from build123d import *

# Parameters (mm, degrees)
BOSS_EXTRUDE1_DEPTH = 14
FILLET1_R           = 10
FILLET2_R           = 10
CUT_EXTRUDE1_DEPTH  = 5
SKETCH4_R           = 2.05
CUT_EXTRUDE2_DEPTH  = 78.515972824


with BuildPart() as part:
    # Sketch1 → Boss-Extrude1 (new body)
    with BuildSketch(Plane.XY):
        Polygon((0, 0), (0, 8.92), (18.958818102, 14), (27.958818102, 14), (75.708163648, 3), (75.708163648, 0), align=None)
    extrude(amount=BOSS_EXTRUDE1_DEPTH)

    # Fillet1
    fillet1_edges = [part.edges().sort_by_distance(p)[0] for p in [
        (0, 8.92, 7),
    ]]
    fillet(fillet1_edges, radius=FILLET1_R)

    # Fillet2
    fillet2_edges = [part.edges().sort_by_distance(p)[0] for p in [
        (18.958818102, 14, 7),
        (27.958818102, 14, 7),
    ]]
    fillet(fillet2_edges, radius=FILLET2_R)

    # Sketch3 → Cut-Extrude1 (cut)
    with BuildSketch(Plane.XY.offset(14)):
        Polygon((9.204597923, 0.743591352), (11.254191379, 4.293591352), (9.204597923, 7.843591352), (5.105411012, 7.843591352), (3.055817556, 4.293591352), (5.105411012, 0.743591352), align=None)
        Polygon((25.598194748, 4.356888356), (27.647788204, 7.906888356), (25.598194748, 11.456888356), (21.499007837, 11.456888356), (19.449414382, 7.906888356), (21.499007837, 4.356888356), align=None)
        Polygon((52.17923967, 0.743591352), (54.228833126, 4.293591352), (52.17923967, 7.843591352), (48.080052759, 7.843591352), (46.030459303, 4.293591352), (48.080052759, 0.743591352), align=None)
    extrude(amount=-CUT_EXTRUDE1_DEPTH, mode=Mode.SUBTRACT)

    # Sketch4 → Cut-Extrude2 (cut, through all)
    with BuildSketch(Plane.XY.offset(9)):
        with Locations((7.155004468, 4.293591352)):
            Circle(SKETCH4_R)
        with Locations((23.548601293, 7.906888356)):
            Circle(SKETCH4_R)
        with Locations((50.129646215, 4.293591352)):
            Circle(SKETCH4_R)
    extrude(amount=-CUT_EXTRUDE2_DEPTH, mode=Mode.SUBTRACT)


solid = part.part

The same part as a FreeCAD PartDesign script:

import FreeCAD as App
import Part
import Sketcher

V = App.Vector
Q = App.Units.Quantity


def edges_at(feature, points):
    """Names of the edges that pass closest to the given points."""
    edges = feature.Shape.Edges
    near = lambda p: min(range(len(edges)), key=lambda i: edges[i].distToShape(Part.Vertex(*p))[0])
    return sorted({f"Edge{near(p) + 1}" for p in points})

doc = App.newDocument("Part")
body = doc.addObject("PartDesign::Body", "Body")

# Sketch on XY plane
sketch1 = body.newObject("Sketcher::SketchObject", "Sketch")
sketch1.AttachmentSupport = (doc.getObject("XY_Plane"), [""])
sketch1.MapMode = "FlatFace"
sketch1.addGeometry([
    Part.LineSegment(V(0, 8.9, 0), V(0, 0, 0)),  # 0
    Part.LineSegment(V(0, 0, 0), V(75.7, 0, 0)),  # 1
    Part.LineSegment(V(75.7, 0, 0), V(75.7, 3, 0)),  # 2
    Part.LineSegment(V(75.7, 3, 0), V(28, 14, 0)),  # 3
    Part.LineSegment(V(28, 14, 0), V(19, 14, 0)),  # 4
    Part.LineSegment(V(19, 14, 0), V(0, 8.9, 0)),  # 5
], False)
sketch1.addConstraint([
    Sketcher.Constraint("Coincident", 0, 2, 1, 1),
    Sketcher.Constraint("Coincident", 1, 2, 2, 1),
    Sketcher.Constraint("Coincident", 2, 2, 3, 1),
    Sketcher.Constraint("Coincident", 3, 2, 4, 1),
    Sketcher.Constraint("Coincident", 4, 2, 5, 1),
    Sketcher.Constraint("Coincident", 5, 2, 0, 1),
    Sketcher.Constraint("Vertical", 0),
    Sketcher.Constraint("Horizontal", 1),
    Sketcher.Constraint("Vertical", 2),
    Sketcher.Constraint("Horizontal", 4),
    Sketcher.Constraint("Coincident", 0, 2, -1, 1),
    Sketcher.Constraint("DistanceX", 4, 2, 4, 1, Q("9 mm")),
    Sketcher.Constraint("DistanceY", 2, 1, 2, 2, Q("3 mm")),
    Sketcher.Constraint("Angle", 5, Q("-165 deg")),
    Sketcher.Constraint("Distance", 3, Q("49 mm")),
    Sketcher.Constraint("DistanceY", -1, 1, 3, 2, Q("14 mm")),
    Sketcher.Constraint("DistanceY", 0, 2, 0, 1, Q("8.92 mm")),
])
pad1 = body.newObject("PartDesign::Pad", "Pad")
pad1.Profile = sketch1
pad1.Length = 14
doc.recompute()

fillet = body.newObject("PartDesign::Fillet", "Fillet")
fillet.Base = (pad1, edges_at(pad1, [(0, 8.92, 7)]))
fillet.Radius = 10
doc.recompute()

fillet2 = body.newObject("PartDesign::Fillet", "Fillet001")
fillet2.Base = (fillet, edges_at(fillet, [(18.959, 14, 7), (27.959, 14, 7)]))
fillet2.Radius = 10

# Sketch on XY plane
sketch2 = body.newObject("Sketcher::SketchObject", "Sketch001")
sketch2.AttachmentSupport = (doc.getObject("XY_Plane"), [""])
sketch2.MapMode = "FlatFace"
sketch2.AttachmentOffset = App.Placement(V(0, 0, 14), App.Rotation())
sketch2.addGeometry([
    Part.LineSegment(V(9.2, 0.7, 0), V(11.3, 4.3, 0)),  # 0
    Part.LineSegment(V(11.3, 4.3, 0), V(9.2, 7.8, 0)),  # 1
    Part.LineSegment(V(9.2, 7.8, 0), V(5.1, 7.8, 0)),  # 2
    Part.LineSegment(V(5.1, 7.8, 0), V(3.1, 4.3, 0)),  # 3
    Part.LineSegment(V(3.1, 4.3, 0), V(5.1, 0.7, 0)),  # 4
    Part.LineSegment(V(5.1, 0.7, 0), V(9.2, 0.7, 0)),  # 5
    Part.LineSegment(V(25.6, 4.4, 0), V(27.6, 7.9, 0)),  # 6
    Part.LineSegment(V(27.6, 7.9, 0), V(25.6, 11.5, 0)),  # 7
    Part.LineSegment(V(25.6, 11.5, 0), V(21.5, 11.5, 0)),  # 8
    Part.LineSegment(V(21.5, 11.5, 0), V(19.4, 7.9, 0)),  # 9
    Part.LineSegment(V(19.4, 7.9, 0), V(21.5, 4.4, 0)),  # 10
    Part.LineSegment(V(21.5, 4.4, 0), V(25.6, 4.4, 0)),  # 11
    Part.LineSegment(V(52.2, 0.7, 0), V(54.2, 4.3, 0)),  # 12
    Part.LineSegment(V(54.2, 4.3, 0), V(52.2, 7.8, 0)),  # 13
    Part.LineSegment(V(52.2, 7.8, 0), V(48.1, 7.8, 0)),  # 14
    Part.LineSegment(V(48.1, 7.8, 0), V(46, 4.3, 0)),  # 15
    Part.LineSegment(V(46, 4.3, 0), V(48.1, 0.7, 0)),  # 16
    Part.LineSegment(V(48.1, 0.7, 0), V(52.2, 0.7, 0)),  # 17
], False)
sketch2.addConstraint([
    Sketcher.Constraint("Coincident", 0, 2, 1, 1),
    Sketcher.Constraint("Coincident", 1, 2, 2, 1),
    Sketcher.Constraint("Coincident", 2, 2, 3, 1),
    Sketcher.Constraint("Coincident", 3, 2, 4, 1),
    Sketcher.Constraint("Coincident", 4, 2, 5, 1),
    Sketcher.Constraint("Coincident", 5, 2, 0, 1),
    Sketcher.Constraint("Coincident", 6, 2, 7, 1),
    Sketcher.Constraint("Coincident", 7, 2, 8, 1),
    Sketcher.Constraint("Coincident", 8, 2, 9, 1),
    Sketcher.Constraint("Coincident", 9, 2, 10, 1),
    Sketcher.Constraint("Coincident", 10, 2, 11, 1),
    Sketcher.Constraint("Coincident", 11, 2, 6, 1),
    Sketcher.Constraint("Coincident", 12, 2, 13, 1),
    Sketcher.Constraint("Coincident", 13, 2, 14, 1),
    Sketcher.Constraint("Coincident", 14, 2, 15, 1),
    Sketcher.Constraint("Coincident", 15, 2, 16, 1),
    Sketcher.Constraint("Coincident", 16, 2, 17, 1),
    Sketcher.Constraint("Coincident", 17, 2, 12, 1),
    Sketcher.Constraint("Horizontal", 2),
    Sketcher.Constraint("Horizontal", 5),
    Sketcher.Constraint("Horizontal", 8),
    Sketcher.Constraint("Horizontal", 11),
    Sketcher.Constraint("Horizontal", 14),
    Sketcher.Constraint("Horizontal", 17),
    Sketcher.Constraint("Parallel", 0, 3),
    Sketcher.Constraint("Parallel", 1, 4),
    Sketcher.Constraint("Parallel", 3, 6),
    Sketcher.Constraint("Parallel", 4, 7),
    Sketcher.Constraint("Parallel", 6, 9),
    Sketcher.Constraint("Parallel", 7, 10),
    Sketcher.Constraint("Parallel", 9, 12),
    Sketcher.Constraint("Parallel", 10, 13),
    Sketcher.Constraint("Parallel", 12, 15),
    Sketcher.Constraint("Parallel", 13, 16),
    Sketcher.Constraint("Horizontal", 0, 2, 3, 2),
    Sketcher.Constraint("Horizontal", 6, 2, 9, 2),
    Sketcher.Constraint("Horizontal", 3, 2, 12, 2),
    Sketcher.Constraint("Horizontal", 2, 2, 13, 2),
    Sketcher.Constraint("Horizontal", 12, 2, 15, 2),
    Sketcher.Constraint("Horizontal", 5, 2, 16, 2),
    Sketcher.Constraint("Vertical", 2, 2, 4, 2),
    Sketcher.Constraint("Vertical", 1, 2, 5, 2),
    Sketcher.Constraint("Vertical", 8, 2, 10, 2),
    Sketcher.Constraint("Equal", 5, 8),
    Sketcher.Constraint("Equal", 11, 14),
    Sketcher.Constraint("Equal", 4, 6),
    Sketcher.Constraint("Angle", 0, Q("60 deg")),
    Sketcher.Constraint("DistanceY", 4, 2, 2, 2, Q("7.1 mm")),
    Sketcher.Constraint("DistanceX", 2, 2, 2, 1, Q("4.099187 mm")),
    Sketcher.Constraint("DistanceX", -1, 1, 0, 2, Q("11.254191 mm")),
    Sketcher.Constraint("DistanceY", -1, 1, 0, 2, Q("4.293591 mm")),
    Sketcher.Constraint("DistanceX", -1, 1, 6, 2, Q("27.647788 mm")),
    Sketcher.Constraint("DistanceY", -1, 1, 6, 2, Q("7.906888 mm")),
    Sketcher.Constraint("DistanceX", -1, 1, 13, 2, Q("52.17924 mm")),
])
pocket1 = body.newObject("PartDesign::Pocket", "Pocket")
pocket1.Profile = sketch2
pocket1.Length = 5

# Sketch on XY plane
sketch3 = body.newObject("Sketcher::SketchObject", "Sketch002")
sketch3.AttachmentSupport = (doc.getObject("XY_Plane"), [""])
sketch3.MapMode = "FlatFace"
sketch3.AttachmentOffset = App.Placement(V(0, 0, 9), App.Rotation())
sketch3.addGeometry([
    Part.Circle(V(7.2, 4.3, 0), V(0, 0, 1), 2),
    Part.Circle(V(23.5, 7.9, 0), V(0, 0, 1), 2),
    Part.Circle(V(50.1, 4.3, 0), V(0, 0, 1), 2),
], False)
sketch3.addConstraint([
    Sketcher.Constraint("Equal", 0, 1),
    Sketcher.Constraint("Equal", 1, 2),
    Sketcher.Constraint("Horizontal", 0, 3, 2, 3),
    Sketcher.Constraint("Diameter", 0, Q("4.1 mm")),
    Sketcher.Constraint("DistanceX", -1, 1, 1, 3, Q("23.548601 mm")),
    Sketcher.Constraint("DistanceY", -1, 1, 0, 3, Q("4.293591 mm")),
    Sketcher.Constraint("DistanceY", -1, 1, 1, 3, Q("7.906888 mm")),
    Sketcher.Constraint("DistanceX", 0, 3, 2, 3, Q("42.974642 mm")),
    Sketcher.Constraint("DistanceX", -1, 1, 0, 3, Q("7.155004 mm")),
])
pocket2 = body.newObject("PartDesign::Pocket", "Pocket001")
pocket2.Profile = sketch3
pocket2.Type = "ThroughAll"

doc.recompute()
